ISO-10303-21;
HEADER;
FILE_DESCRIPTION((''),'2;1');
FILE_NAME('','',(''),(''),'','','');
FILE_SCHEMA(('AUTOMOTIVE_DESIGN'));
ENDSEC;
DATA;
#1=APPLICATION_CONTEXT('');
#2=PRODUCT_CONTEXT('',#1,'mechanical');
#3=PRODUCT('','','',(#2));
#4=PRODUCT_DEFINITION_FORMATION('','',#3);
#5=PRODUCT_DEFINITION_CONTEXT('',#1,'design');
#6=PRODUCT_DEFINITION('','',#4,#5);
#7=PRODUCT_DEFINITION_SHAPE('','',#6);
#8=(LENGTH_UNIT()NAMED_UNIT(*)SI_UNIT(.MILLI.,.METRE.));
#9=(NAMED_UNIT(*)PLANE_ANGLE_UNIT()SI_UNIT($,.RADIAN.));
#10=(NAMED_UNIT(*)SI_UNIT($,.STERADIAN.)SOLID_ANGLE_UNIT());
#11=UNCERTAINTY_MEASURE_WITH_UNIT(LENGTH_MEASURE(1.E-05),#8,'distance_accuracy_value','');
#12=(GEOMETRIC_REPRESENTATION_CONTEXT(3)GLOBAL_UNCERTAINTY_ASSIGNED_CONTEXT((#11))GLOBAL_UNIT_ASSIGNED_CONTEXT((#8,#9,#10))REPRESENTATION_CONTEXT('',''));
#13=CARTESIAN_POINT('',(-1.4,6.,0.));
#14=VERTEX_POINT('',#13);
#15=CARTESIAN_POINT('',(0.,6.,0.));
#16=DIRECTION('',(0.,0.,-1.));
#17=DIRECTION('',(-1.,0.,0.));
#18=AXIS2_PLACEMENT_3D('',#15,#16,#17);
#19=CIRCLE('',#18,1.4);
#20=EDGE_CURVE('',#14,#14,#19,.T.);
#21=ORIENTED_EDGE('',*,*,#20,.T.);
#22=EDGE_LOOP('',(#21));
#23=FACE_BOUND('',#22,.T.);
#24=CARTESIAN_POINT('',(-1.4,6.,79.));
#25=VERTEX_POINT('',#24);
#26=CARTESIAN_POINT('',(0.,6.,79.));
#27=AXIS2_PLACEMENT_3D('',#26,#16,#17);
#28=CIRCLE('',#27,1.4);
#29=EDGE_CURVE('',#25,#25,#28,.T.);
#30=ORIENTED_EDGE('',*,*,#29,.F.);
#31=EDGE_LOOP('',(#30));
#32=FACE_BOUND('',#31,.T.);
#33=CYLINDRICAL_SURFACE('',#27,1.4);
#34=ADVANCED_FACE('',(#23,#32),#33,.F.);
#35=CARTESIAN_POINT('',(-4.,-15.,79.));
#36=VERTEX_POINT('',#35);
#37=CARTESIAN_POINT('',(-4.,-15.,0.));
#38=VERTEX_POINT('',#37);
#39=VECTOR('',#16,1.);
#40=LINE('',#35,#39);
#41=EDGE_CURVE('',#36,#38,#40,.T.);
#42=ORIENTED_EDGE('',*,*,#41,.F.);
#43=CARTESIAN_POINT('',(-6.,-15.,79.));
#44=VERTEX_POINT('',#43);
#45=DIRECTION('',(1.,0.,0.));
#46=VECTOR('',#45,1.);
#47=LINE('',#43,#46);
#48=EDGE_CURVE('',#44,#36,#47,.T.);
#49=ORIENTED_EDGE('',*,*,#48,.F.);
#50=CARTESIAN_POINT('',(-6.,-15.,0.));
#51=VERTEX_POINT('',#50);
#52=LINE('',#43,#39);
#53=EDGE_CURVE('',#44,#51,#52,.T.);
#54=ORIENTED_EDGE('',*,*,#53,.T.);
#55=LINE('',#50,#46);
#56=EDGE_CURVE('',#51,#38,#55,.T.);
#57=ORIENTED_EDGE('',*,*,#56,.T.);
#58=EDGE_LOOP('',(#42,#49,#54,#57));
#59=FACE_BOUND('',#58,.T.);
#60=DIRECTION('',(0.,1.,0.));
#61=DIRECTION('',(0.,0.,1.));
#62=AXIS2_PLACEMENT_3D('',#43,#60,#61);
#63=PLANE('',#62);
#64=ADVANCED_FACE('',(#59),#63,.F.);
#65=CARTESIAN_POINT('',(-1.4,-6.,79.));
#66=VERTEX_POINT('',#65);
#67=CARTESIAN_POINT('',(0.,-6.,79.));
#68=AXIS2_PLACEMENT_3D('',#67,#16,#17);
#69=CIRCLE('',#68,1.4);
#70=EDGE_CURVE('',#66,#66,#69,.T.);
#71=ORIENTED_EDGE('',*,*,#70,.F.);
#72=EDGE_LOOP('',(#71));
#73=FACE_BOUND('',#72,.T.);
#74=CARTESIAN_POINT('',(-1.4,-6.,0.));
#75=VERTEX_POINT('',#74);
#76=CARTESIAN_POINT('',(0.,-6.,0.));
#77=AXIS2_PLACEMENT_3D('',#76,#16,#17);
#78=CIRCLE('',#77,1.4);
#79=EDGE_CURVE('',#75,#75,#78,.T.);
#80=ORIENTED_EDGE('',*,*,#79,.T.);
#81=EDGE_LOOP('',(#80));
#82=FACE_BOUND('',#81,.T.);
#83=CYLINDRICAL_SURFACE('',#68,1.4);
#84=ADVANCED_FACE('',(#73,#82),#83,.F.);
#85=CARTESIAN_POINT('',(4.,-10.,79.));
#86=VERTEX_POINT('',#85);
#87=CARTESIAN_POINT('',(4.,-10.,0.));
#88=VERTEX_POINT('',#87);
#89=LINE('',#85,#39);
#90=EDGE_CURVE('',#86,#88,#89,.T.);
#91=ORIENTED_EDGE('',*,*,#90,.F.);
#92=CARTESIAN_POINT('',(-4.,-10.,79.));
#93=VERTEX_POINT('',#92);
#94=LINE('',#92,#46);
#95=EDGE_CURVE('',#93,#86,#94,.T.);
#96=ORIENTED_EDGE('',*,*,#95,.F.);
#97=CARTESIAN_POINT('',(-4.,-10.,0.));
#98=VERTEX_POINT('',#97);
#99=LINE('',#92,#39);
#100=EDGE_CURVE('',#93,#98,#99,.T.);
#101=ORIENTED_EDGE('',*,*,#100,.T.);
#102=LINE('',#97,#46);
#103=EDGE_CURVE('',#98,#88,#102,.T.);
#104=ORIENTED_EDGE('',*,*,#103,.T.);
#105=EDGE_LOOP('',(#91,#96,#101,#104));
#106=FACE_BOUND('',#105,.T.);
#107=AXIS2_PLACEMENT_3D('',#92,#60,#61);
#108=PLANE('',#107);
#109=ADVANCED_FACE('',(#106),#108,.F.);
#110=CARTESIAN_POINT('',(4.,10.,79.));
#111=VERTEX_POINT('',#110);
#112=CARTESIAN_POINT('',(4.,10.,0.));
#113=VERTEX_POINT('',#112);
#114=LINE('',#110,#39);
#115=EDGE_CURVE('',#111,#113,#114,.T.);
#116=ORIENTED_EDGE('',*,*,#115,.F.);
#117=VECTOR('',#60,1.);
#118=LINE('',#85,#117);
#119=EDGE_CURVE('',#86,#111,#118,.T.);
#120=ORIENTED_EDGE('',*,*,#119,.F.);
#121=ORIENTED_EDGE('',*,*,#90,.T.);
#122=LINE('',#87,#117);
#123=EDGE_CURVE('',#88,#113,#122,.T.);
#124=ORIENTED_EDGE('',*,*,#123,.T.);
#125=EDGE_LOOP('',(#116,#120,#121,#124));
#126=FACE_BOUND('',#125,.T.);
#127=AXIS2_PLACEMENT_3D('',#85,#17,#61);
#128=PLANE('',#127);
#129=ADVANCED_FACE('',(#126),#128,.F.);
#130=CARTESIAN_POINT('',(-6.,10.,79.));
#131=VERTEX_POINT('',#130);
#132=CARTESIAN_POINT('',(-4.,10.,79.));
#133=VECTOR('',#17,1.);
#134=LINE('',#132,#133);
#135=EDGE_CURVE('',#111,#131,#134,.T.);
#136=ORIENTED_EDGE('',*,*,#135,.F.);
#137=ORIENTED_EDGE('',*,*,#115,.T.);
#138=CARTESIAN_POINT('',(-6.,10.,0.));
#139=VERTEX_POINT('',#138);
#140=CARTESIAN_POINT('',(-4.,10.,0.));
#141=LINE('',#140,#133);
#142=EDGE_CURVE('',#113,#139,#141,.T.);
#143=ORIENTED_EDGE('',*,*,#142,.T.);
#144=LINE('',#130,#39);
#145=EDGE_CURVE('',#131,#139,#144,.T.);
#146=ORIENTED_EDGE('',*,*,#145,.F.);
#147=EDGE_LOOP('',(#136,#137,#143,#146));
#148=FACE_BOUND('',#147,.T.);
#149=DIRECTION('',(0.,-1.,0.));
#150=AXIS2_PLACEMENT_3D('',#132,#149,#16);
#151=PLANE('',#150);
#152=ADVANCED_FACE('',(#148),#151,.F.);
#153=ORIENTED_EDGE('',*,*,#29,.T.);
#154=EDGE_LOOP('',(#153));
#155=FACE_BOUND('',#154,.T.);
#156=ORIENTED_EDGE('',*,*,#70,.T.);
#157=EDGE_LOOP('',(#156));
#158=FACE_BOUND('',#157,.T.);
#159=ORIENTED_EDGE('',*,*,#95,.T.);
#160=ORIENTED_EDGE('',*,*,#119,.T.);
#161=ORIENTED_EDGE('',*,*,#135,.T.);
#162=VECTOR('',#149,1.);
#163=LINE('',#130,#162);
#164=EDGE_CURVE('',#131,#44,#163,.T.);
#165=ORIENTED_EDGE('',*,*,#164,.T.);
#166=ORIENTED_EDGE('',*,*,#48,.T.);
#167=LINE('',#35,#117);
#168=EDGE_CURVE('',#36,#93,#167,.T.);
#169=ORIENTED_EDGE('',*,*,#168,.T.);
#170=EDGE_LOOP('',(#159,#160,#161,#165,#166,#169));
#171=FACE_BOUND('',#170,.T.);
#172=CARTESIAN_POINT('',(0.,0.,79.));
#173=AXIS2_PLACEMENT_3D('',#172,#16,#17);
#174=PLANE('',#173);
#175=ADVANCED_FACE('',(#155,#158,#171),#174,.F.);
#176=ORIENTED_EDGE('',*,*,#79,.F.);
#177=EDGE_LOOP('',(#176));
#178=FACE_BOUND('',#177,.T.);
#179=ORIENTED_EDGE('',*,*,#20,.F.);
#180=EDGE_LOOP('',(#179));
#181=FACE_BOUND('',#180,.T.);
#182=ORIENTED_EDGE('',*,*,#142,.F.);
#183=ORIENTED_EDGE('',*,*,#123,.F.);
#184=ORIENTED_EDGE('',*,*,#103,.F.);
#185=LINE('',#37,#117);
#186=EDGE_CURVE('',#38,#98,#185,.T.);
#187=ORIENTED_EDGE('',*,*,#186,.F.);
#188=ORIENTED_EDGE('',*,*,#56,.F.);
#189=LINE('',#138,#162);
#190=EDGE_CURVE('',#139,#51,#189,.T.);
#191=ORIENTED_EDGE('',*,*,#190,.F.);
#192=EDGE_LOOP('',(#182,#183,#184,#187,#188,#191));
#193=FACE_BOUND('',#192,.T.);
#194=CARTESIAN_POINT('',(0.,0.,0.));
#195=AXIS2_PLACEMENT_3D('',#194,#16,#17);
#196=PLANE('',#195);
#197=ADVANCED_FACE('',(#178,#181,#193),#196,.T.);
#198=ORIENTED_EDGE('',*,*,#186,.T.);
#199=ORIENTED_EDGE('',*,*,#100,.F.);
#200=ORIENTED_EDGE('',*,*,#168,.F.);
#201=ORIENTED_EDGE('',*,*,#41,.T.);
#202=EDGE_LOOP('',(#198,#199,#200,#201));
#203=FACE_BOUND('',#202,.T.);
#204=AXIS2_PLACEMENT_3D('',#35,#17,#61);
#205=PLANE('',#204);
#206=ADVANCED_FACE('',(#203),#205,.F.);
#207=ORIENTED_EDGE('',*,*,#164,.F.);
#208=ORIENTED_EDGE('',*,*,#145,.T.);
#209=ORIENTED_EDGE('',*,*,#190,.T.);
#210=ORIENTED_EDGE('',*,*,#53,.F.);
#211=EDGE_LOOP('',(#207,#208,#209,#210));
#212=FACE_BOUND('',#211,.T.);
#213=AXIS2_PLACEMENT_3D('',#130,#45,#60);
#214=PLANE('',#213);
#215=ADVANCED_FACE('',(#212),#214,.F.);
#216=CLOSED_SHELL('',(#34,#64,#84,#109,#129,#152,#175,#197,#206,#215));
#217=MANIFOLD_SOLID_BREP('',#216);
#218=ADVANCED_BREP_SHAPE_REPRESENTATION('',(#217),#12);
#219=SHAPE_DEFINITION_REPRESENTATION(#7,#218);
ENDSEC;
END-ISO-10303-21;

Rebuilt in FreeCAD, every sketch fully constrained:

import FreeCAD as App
import Part
import Sketcher
from FreeCAD import Vector


def add_polygon(sketch, points):
    """Adds a closed chain of lines whose ends are joined by coincident constraints."""
    first, n = sketch.GeometryCount, len(points)
    for a, b in zip(points, points[1:] + points[:1]):
        sketch.addGeometry(Part.LineSegment(App.Vector(*a, 0), App.Vector(*b, 0)), False)
    for i in range(n):
        sketch.addConstraint(Sketcher.Constraint("Coincident", first + i, 2, first + (i + 1) % n, 1))

doc = App.newDocument("Part")
params = doc.addObject("Spreadsheet::Sheet", "Params")
for row, (alias, value) in enumerate([
    ("sketch1_width", "2 mm"),
    ("sketch1_width2", "8 mm"),
    ("sketch1_height", "25 mm"),
    ("sketch1_height2", "5 mm"),
    ("pad1_length", "79 mm"),
    ("sketch2_diameter", "2.8 mm"),
    ("pocket1_length", "79 mm"),
], start=1):
    params.set(f"A{row}", alias)
    params.set(f"B{row}", "=" + value)
    params.setAlias(f"B{row}", alias)

body = doc.addObject("PartDesign::Body", "Body")

sketch1 = body.newObject("Sketcher::SketchObject", "Sketch")
sketch1.AttachmentSupport = (doc.getObject("XY_Plane"), [""])
sketch1.MapMode = "FlatFace"
add_polygon(sketch1, [(-6, 10), (-6, -15), (-4, -15), (-4, -10), (4, -10), (4, 10)])
sketch1.addConstraint([
    Sketcher.Constraint("Vertical", 0),
    Sketcher.Constraint("Horizontal", 1),
    Sketcher.Constraint("Vertical", 2),
    Sketcher.Constraint("Horizontal", 3),
    Sketcher.Constraint("Vertical", 4),
    Sketcher.Constraint("Horizontal", 5),
    Sketcher.Constraint("Symmetric", 2, 2, 4, 2, -1, 1),
    Sketcher.Constraint("DistanceX", 1, 1, 1, 2, 2.0),
    Sketcher.Constraint("DistanceX", 3, 1, 3, 2, 8.0),
    Sketcher.Constraint("DistanceY", 0, 2, 0, 1, 25.0),
    Sketcher.Constraint("DistanceY", 2, 1, 2, 2, 5.0),
])
sketch1.setExpression("Constraints[13]", "Params.sketch1_width")
sketch1.setExpression("Constraints[14]", "Params.sketch1_width2")
sketch1.setExpression("Constraints[15]", "Params.sketch1_height")
sketch1.setExpression("Constraints[16]", "Params.sketch1_height2")
pad1 = body.newObject("PartDesign::Pad", "Pad")
pad1.Profile = sketch1
pad1.setExpression("Length", "Params.pad1_length")

sketch2 = body.newObject("Sketcher::SketchObject", "Sketch001")
sketch2.AttachmentSupport = (doc.getObject("XY_Plane"), [""])
sketch2.MapMode = "FlatFace"
sketch2.addGeometry([
    Part.Circle(Vector(0, 6, 0), Vector(0, 0, 1), 1.4),
    Part.Circle(Vector(0, -6, 0), Vector(0, 0, 1), 1.4),
], False)
sketch2.addConstraint([
    Sketcher.Constraint("Equal", 0, 1),
    Sketcher.Constraint("Symmetric", 0, 3, 1, 3, -1, 1),
    Sketcher.Constraint("PointOnObject", 0, 3, -2),
    Sketcher.Constraint("Diameter", 0, 2.8),
    Sketcher.Constraint("DistanceY", -1, 1, 0, 3, 6.0),
])
sketch2.setExpression("Constraints[3]", "Params.sketch2_diameter")
pocket1 = body.newObject("PartDesign::Pocket", "Pocket")
pocket1.Profile = sketch2
pocket1.setExpression("Length", "Params.pocket1_length")
pocket1.Reversed = True

doc.recompute()
